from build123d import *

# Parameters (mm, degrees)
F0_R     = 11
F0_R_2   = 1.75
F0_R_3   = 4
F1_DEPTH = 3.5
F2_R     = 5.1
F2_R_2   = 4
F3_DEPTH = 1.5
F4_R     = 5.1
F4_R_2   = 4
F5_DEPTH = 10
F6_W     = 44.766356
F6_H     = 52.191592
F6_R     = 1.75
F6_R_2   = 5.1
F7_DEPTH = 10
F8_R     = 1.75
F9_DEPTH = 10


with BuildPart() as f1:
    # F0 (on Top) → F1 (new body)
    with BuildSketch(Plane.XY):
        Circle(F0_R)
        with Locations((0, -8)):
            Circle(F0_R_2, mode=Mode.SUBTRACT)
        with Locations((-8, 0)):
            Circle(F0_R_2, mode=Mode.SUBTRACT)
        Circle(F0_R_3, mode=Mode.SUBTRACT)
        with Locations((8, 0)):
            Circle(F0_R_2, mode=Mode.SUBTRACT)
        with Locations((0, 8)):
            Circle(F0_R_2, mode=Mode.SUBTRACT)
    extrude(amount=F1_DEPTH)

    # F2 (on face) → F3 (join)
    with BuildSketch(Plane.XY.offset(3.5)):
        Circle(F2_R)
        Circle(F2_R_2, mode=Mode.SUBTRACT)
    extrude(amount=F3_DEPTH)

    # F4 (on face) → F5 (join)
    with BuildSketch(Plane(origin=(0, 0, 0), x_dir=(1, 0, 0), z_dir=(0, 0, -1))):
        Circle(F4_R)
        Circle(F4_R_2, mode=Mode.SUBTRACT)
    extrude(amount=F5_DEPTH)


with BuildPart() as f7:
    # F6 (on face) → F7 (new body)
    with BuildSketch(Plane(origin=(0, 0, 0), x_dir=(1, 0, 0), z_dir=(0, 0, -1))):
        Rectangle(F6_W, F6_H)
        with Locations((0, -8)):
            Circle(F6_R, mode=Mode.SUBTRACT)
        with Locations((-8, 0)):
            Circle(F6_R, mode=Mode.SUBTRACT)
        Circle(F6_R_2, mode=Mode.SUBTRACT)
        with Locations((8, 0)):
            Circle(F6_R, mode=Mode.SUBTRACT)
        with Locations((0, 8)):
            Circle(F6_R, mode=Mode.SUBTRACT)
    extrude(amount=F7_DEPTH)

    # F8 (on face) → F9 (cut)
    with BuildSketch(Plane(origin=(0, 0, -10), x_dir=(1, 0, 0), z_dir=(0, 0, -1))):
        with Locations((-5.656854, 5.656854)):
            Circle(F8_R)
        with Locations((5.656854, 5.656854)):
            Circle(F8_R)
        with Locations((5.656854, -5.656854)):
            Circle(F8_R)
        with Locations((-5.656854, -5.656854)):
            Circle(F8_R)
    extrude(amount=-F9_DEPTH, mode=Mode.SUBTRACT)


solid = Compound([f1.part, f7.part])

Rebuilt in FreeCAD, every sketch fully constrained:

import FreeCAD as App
import Part
import Sketcher
from FreeCAD import Vector

doc = App.newDocument("Part")
body = doc.addObject("PartDesign::Body", "Body")

# Sketch on XY plane
sketch1 = body.newObject("Sketcher::SketchObject", "Sketch")
sketch1.AttachmentSupport = (doc.getObject("XY_Plane"), [""])
sketch1.MapMode = "FlatFace"
sketch1.addGeometry(Part.Circle(Vector(0, 0, 0), Vector(0, 0, 1), 11), False)
sketch1.addGeometry(Part.Circle(Vector(0, -8, 0), Vector(0, 0, 1), 1.8), False)
sketch1.addGeometry(Part.Circle(Vector(-8, 0, 0), Vector(0, 0, 1), 1.8), False)
sketch1.addGeometry(Part.Circle(Vector(0, 0, 0), Vector(0, 0, 1), 4), False)
sketch1.addGeometry(Part.Circle(Vector(8, 0, 0), Vector(0, 0, 1), 1.8), False)
sketch1.addGeometry(Part.Circle(Vector(0, 8, 0), Vector(0, 0, 1), 1.8), False)
sketch1.addConstraint(Sketcher.Constraint("Coincident", 0, 3, -1, 1))
sketch1.addConstraint(Sketcher.Constraint("Coincident", 3, 3, -1, 1))
sketch1.addConstraint(Sketcher.Constraint("Equal", 1, 2))
sketch1.addConstraint(Sketcher.Constraint("Equal", 2, 4))
sketch1.addConstraint(Sketcher.Constraint("Equal", 4, 5))
sketch1.addConstraint(Sketcher.Constraint("Symmetric", 2, 3, 4, 3, -1, 1))
sketch1.addConstraint(Sketcher.Constraint("Symmetric", 1, 3, 5, 3, -1, 1))
sketch1.addConstraint(Sketcher.Constraint("PointOnObject", 1, 3, -2))
sketch1.addConstraint(Sketcher.Constraint("PointOnObject", 2, 3, -1))
sketch1.addConstraint(Sketcher.Constraint("Diameter", 0, 22.0))
sketch1.addConstraint(Sketcher.Constraint("Diameter", 3, 8.0))
sketch1.addConstraint(Sketcher.Constraint("Diameter", 1, 3.5))
sketch1.addConstraint(Sketcher.Constraint("DistanceY", 1, 3, -1, 1, 8.0))
sketch1.addConstraint(Sketcher.Constraint("DistanceX", 2, 3, -1, 1, 8.0))
pad1 = body.newObject("PartDesign::Pad", "Pad")
pad1.Profile = sketch1
pad1.Length = 3.5

# Sketch on XY plane
sketch2 = body.newObject("Sketcher::SketchObject", "Sketch001")
sketch2.AttachmentSupport = (doc.getObject("XY_Plane"), [""])
sketch2.MapMode = "FlatFace"
sketch2.AttachmentOffset = App.Placement(Vector(0, 0, 3.5), App.Rotation())
sketch2.addGeometry(Part.Circle(Vector(0, 0, 0), Vector(0, 0, 1), 5.1), False)
sketch2.addGeometry(Part.Circle(Vector(0, 0, 0), Vector(0, 0, 1), 4), False)
sketch2.addConstraint(Sketcher.Constraint("Coincident", 0, 3, -1, 1))
sketch2.addConstraint(Sketcher.Constraint("Coincident", 1, 3, -1, 1))
sketch2.addConstraint(Sketcher.Constraint("Diameter", 1, 8.0))
sketch2.addConstraint(Sketcher.Constraint("Diameter", 0, 10.2))
pad2 = body.newObject("PartDesign::Pad", "Pad001")
pad2.Profile = sketch2
pad2.Length = 1.5

# Sketch on XY plane
sketch3 = body.newObject("Sketcher::SketchObject", "Sketch002")
sketch3.AttachmentSupport = (doc.getObject("XY_Plane"), [""])
sketch3.MapMode = "FlatFace"
sketch3.addGeometry(Part.Circle(Vector(0, 0, 0), Vector(0, 0, 1), 5.1), False)
sketch3.addGeometry(Part.Circle(Vector(0, 0, 0), Vector(0, 0, 1), 4), False)
sketch3.addConstraint(Sketcher.Constraint("Coincident", 0, 3, -1, 1))
sketch3.addConstraint(Sketcher.Constraint("Coincident", 1, 3, -1, 1))
sketch3.addConstraint(Sketcher.Constraint("Diameter", 1, 8.0))
sketch3.addConstraint(Sketcher.Constraint("Diameter", 0, 10.2))
pad3 = body.newObject("PartDesign::Pad", "Pad002")
pad3.Profile = sketch3
pad3.Length = 10
pad3.Reversed = True
body2 = doc.addObject("PartDesign::Body", "Body001")

# Sketch on XY plane
sketch4 = body2.newObject("Sketcher::SketchObject", "Sketch003")
sketch4.AttachmentSupport = (doc.getObject("XY_Plane001"), [""])
sketch4.MapMode = "FlatFace"
sketch4.addGeometry(Part.LineSegment(Vector(-22.4, -26.1, 0), Vector(-22.4, 26.1, 0)), False)
sketch4.addGeometry(Part.LineSegment(Vector(-22.4, 26.1, 0), Vector(22.4, 26.1, 0)), False)
sketch4.addGeometry(Part.LineSegment(Vector(22.4, 26.1, 0), Vector(22.4, -26.1, 0)), False)
sketch4.addGeometry(Part.LineSegment(Vector(22.4, -26.1, 0), Vector(-22.4, -26.1, 0)), False)
sketch4.addGeometry(Part.Circle(Vector(0, 8, 0), Vector(0, 0, 1), 1.8), False)
sketch4.addGeometry(Part.Circle(Vector(-8, 0, 0), Vector(0, 0, 1), 1.8), False)
sketch4.addGeometry(Part.Circle(Vector(0, 0, 0), Vector(0, 0, 1), 5.1), False)
sketch4.addGeometry(Part.Circle(Vector(8, 0, 0), Vector(0, 0, 1), 1.8), False)
sketch4.addGeometry(Part.Circle(Vector(0, -8, 0), Vector(0, 0, 1), 1.8), False)
sketch4.addConstraint(Sketcher.Constraint("Coincident", 0, 2, 1, 1))
sketch4.addConstraint(Sketcher.Constraint("Coincident", 1, 2, 2, 1))
sketch4.addConstraint(Sketcher.Constraint("Coincident", 2, 2, 3, 1))
sketch4.addConstraint(Sketcher.Constraint("Coincident", 3, 2, 0, 1))
sketch4.addConstraint(Sketcher.Constraint("Vertical", 0))
sketch4.addConstraint(Sketcher.Constraint("Horizontal", 1))
sketch4.addConstraint(Sketcher.Constraint("Vertical", 2))
sketch4.addConstraint(Sketcher.Constraint("Horizontal", 3))
sketch4.addConstraint(Sketcher.Constraint("Coincident", 6, 3, -1, 1))
sketch4.addConstraint(Sketcher.Constraint("Equal", 4, 5))
sketch4.addConstraint(Sketcher.Constraint("Equal", 5, 7))
sketch4.addConstraint(Sketcher.Constraint("Equal", 7, 8))
sketch4.addConstraint(Sketcher.Constraint("Symmetric", 5, 3, 7, 3, -1, 1))
sketch4.addConstraint(Sketcher.Constraint("Symmetric", 4, 3, 8, 3, -1, 1))
sketch4.addConstraint(Sketcher.Constraint("Symmetric", 0, 2, 2, 2, -1, 1))
sketch4.addConstraint(Sketcher.Constraint("PointOnObject", 4, 3, -2))
sketch4.addConstraint(Sketcher.Constraint("PointOnObject", 5, 3, -1))
sketch4.addConstraint(Sketcher.Constraint("Diameter", 4, 3.5))
sketch4.addConstraint(Sketcher.Constraint("Diameter", 6, 10.2))
sketch4.addConstraint(Sketcher.Constraint("DistanceY", -1, 1, 4, 3, 8.0))
sketch4.addConstraint(Sketcher.Constraint("DistanceX", 5, 3, -1, 1, 8.0))
sketch4.addConstraint(Sketcher.Constraint("DistanceX", 1, 1, 1, 2, 44.766356))
sketch4.addConstraint(Sketcher.Constraint("DistanceY", 0, 1, 0, 2, 52.191592))
pad4 = body2.newObject("PartDesign::Pad", "Pad003")
pad4.Profile = sketch4
pad4.Length = 10
pad4.Reversed = True

# Sketch on XY plane
sketch5 = body2.newObject("Sketcher::SketchObject", "Sketch004")
sketch5.AttachmentSupport = (doc.getObject("XY_Plane001"), [""])
sketch5.MapMode = "FlatFace"
sketch5.AttachmentOffset = App.Placement(Vector(0, 0, -10), App.Rotation())
sketch5.addGeometry(Part.Circle(Vector(-5.7, -5.7, 0), Vector(0, 0, 1), 1.8), False)
sketch5.addGeometry(Part.Circle(Vector(5.7, -5.7, 0), Vector(0, 0, 1), 1.8), False)
sketch5.addGeometry(Part.Circle(Vector(5.7, 5.7, 0), Vector(0, 0, 1), 1.8), False)
sketch5.addGeometry(Part.Circle(Vector(-5.7, 5.7, 0), Vector(0, 0, 1), 1.8), False)
sketch5.addConstraint(Sketcher.Constraint("Equal", 0, 1))
sketch5.addConstraint(Sketcher.Constraint("Equal", 1, 2))
sketch5.addConstraint(Sketcher.Constraint("Equal", 2, 3))
sketch5.addConstraint(Sketcher.Constraint("Symmetric", 0, 3, 2, 3, -1, 1))
sketch5.addConstraint(Sketcher.Constraint("Symmetric", 1, 3, 3, 3, -1, 1))
sketch5.addConstraint(Sketcher.Constraint("Symmetric", 0, 3, 1, 3, -2))
sketch5.addConstraint(Sketcher.Constraint("Diameter", 0, 3.5))
sketch5.addConstraint(Sketcher.Constraint("DistanceX", 0, 3, -1, 1, 5.656854))
sketch5.addConstraint(Sketcher.Constraint("DistanceY", 0, 3, -1, 1, 5.656854))
pocket1 = body2.newObject("PartDesign::Pocket", "Pocket")
pocket1.Profile = sketch5
pocket1.Length = 10
pocket1.Reversed = True

doc.recompute()
